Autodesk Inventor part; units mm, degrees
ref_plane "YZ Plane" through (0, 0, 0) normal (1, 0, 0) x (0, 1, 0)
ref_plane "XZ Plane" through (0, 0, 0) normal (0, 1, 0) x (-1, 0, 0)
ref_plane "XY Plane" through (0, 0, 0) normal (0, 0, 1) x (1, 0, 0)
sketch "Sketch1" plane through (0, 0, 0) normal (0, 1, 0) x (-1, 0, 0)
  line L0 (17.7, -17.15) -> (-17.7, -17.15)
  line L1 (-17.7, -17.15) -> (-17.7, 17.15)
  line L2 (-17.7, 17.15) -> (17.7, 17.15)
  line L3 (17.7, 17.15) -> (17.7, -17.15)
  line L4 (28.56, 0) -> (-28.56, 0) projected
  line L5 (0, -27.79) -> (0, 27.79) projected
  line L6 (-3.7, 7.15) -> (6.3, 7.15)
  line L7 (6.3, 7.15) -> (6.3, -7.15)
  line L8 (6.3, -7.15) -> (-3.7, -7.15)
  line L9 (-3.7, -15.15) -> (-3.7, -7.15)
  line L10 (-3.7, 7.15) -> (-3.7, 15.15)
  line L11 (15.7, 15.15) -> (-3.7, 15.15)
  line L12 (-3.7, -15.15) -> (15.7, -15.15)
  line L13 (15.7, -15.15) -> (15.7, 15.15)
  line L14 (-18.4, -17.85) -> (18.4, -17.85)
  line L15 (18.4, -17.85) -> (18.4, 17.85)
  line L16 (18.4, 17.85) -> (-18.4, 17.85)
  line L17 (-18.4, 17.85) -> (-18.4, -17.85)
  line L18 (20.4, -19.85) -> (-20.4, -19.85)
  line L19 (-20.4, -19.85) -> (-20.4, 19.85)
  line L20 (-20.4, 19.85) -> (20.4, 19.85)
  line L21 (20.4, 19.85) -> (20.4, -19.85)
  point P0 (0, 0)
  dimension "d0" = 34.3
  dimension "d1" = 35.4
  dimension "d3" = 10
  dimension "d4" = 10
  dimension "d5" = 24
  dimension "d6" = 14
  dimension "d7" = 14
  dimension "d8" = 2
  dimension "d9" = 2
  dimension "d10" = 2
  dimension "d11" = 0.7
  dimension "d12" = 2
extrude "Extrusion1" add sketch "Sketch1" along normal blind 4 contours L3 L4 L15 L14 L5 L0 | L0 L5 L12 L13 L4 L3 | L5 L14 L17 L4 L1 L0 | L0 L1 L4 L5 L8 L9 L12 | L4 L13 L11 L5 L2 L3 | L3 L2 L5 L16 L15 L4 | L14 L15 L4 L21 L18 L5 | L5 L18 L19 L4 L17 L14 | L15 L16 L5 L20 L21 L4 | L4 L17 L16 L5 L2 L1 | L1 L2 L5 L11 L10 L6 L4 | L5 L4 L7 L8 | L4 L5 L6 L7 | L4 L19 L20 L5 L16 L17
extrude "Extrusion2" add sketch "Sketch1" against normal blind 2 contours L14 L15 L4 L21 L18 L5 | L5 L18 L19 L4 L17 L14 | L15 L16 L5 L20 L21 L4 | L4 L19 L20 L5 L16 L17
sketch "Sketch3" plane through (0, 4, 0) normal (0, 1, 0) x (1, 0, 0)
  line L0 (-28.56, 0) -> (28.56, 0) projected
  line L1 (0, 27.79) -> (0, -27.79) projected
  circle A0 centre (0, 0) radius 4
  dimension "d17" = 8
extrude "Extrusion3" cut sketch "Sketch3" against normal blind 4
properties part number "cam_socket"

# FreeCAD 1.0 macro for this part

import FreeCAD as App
import Part
import Sketcher

doc = App.newDocument("Part")
params = doc.addObject("Spreadsheet::Sheet", "Params")
for row, (alias, value) in enumerate([
    ("sketch1_width", "10 mm"),
    ("sketch1_height", "8 mm"),
    ("sketch1_width2", "40.8 mm"),
    ("sketch1_width3", "19.4 mm"),
    ("sketch1_height2", "39.7 mm"),
    ("pad1_length", "4 mm"),
    ("sketch2_width", "40.8 mm"),
    ("sketch2_height", "39.7 mm"),
    ("pad2_length", "2 mm"),
    ("sketch3_diameter", "8 mm"),
    ("pocket1_length", "4 mm"),
], start=1):
    params.set(f"A{row}", alias)
    params.set(f"B{row}", "=" + value)
    params.setAlias(f"B{row}", alias)

body = doc.addObject("PartDesign::Body", "Body")

# Sketch on XZ plane
sketch1 = body.newObject("Sketcher::SketchObject", "Sketch")
sketch1.AttachmentSupport = (doc.getObject("XZ_Plane"), [""])
sketch1.MapMode = "FlatFace"
sketch1.addGeometry(Part.LineSegment(App.Vector(-20, -20, 0), App.Vector(-20, 20, 0)), False)
sketch1.addGeometry(Part.LineSegment(App.Vector(-20, 20, 0), App.Vector(20, 20, 0)), False)
sketch1.addGeometry(Part.LineSegment(App.Vector(20, 20, 0), App.Vector(20, -20, 0)), False)
sketch1.addGeometry(Part.LineSegment(App.Vector(20, -20, 0), App.Vector(-20, -20, 0)), False)
sketch1.addGeometry(Part.LineSegment(App.Vector(-16, -15, 0), App.Vector(4, -15, 0)), False)
sketch1.addGeometry(Part.LineSegment(App.Vector(4, -15, 0), App.Vector(4, -7, 0)), False)
sketch1.addGeometry(Part.LineSegment(App.Vector(4, -7, 0), App.Vector(-6, -7, 0)), False)
sketch1.addGeometry(Part.LineSegment(App.Vector(-6, -7, 0), App.Vector(-6, 7, 0)), False)
sketch1.addGeometry(Part.LineSegment(App.Vector(-6, 7, 0), App.Vector(4, 7, 0)), False)
sketch1.addGeometry(Part.LineSegment(App.Vector(4, 7, 0), App.Vector(4, 15, 0)), False)
sketch1.addGeometry(Part.LineSegment(App.Vector(4, 15, 0), App.Vector(-16, 15, 0)), False)
sketch1.addGeometry(Part.LineSegment(App.Vector(-16, 15, 0), App.Vector(-16, -15, 0)), False)
sketch1.addConstraint(Sketcher.Constraint("Coincident", 0, 2, 1, 1))
sketch1.addConstraint(Sketcher.Constraint("Coincident", 1, 2, 2, 1))
sketch1.addConstraint(Sketcher.Constraint("Coincident", 2, 2, 3, 1))
sketch1.addConstraint(Sketcher.Constraint("Coincident", 3, 2, 0, 1))
sketch1.addConstraint(Sketcher.Constraint("Coincident", 4, 2, 5, 1))
sketch1.addConstraint(Sketcher.Constraint("Coincident", 5, 2, 6, 1))
sketch1.addConstraint(Sketcher.Constraint("Coincident", 6, 2, 7, 1))
sketch1.addConstraint(Sketcher.Constraint("Coincident", 7, 2, 8, 1))
sketch1.addConstraint(Sketcher.Constraint("Coincident", 8, 2, 9, 1))
sketch1.addConstraint(Sketcher.Constraint("Coincident", 9, 2, 10, 1))
sketch1.addConstraint(Sketcher.Constraint("Coincident", 10, 2, 11, 1))
sketch1.addConstraint(Sketcher.Constraint("Coincident", 11, 2, 4, 1))
sketch1.addConstraint(Sketcher.Constraint("Vertical", 0))
sketch1.addConstraint(Sketcher.Constraint("Horizontal", 1))
sketch1.addConstraint(Sketcher.Constraint("Vertical", 2))
sketch1.addConstraint(Sketcher.Constraint("Horizontal", 3))
sketch1.addConstraint(Sketcher.Constraint("Horizontal", 4))
sketch1.addConstraint(Sketcher.Constraint("Vertical", 5))
sketch1.addConstraint(Sketcher.Constraint("Horizontal", 6))
sketch1.addConstraint(Sketcher.Constraint("Vertical", 7))
sketch1.addConstraint(Sketcher.Constraint("Horizontal", 8))
sketch1.addConstraint(Sketcher.Constraint("Vertical", 9))
sketch1.addConstraint(Sketcher.Constraint("Horizontal", 10))
sketch1.addConstraint(Sketcher.Constraint("Vertical", 11))
sketch1.addConstraint(Sketcher.Constraint("Symmetric", 0, 2, 2, 2, -1, 1))
sketch1.addConstraint(Sketcher.Constraint("Symmetric", 5, 2, 8, 2, -1))
sketch1.addConstraint(Sketcher.Constraint("Equal", 5, 9))
sketch1.addConstraint(Sketcher.Constraint("DistanceX", 6, 2, 6, 1, 10.0))
sketch1.addConstraint(Sketcher.Constraint("DistanceY", 5, 1, 5, 2, 8.0))
sketch1.addConstraint(Sketcher.Constraint("DistanceX", 1, 1, 1, 2, 40.8))
sketch1.addConstraint(Sketcher.Constraint("DistanceX", 4, 1, 4, 2, 19.4))
sketch1.addConstraint(Sketcher.Constraint("DistanceY", 0, 1, 0, 2, 39.7))
sketch1.addConstraint(Sketcher.Constraint("DistanceY", 7, 1, 7, 2, 14.3))
sketch1.addConstraint(Sketcher.Constraint("DistanceX", -1, 1, 4, 2, 3.7))
sketch1.setExpression("Constraints[27]", "Params.sketch1_width")
sketch1.setExpression("Constraints[28]", "Params.sketch1_height")
sketch1.setExpression("Constraints[29]", "Params.sketch1_width2")
sketch1.setExpression("Constraints[30]", "Params.sketch1_width3")
sketch1.setExpression("Constraints[31]", "Params.sketch1_height2")
pad1 = body.newObject("PartDesign::Pad", "Pad")
pad1.Profile = sketch1
pad1.setExpression("Length", "Params.pad1_length")
pad1.Reversed = True

# Sketch on XZ plane
sketch2 = body.newObject("Sketcher::SketchObject", "Sketch001")
sketch2.AttachmentSupport = (doc.getObject("XZ_Plane"), [""])
sketch2.MapMode = "FlatFace"
sketch2.addGeometry(Part.LineSegment(App.Vector(-20, -20, 0), App.Vector(-20, 20, 0)), False)
sketch2.addGeometry(Part.LineSegment(App.Vector(-20, 20, 0), App.Vector(20, 20, 0)), False)
sketch2.addGeometry(Part.LineSegment(App.Vector(20, 20, 0), App.Vector(20, -20, 0)), False)
sketch2.addGeometry(Part.LineSegment(App.Vector(20, -20, 0), App.Vector(-20, -20, 0)), False)
sketch2.addGeometry(Part.LineSegment(App.Vector(-18, -18, 0), App.Vector(18, -18, 0)), False)
sketch2.addGeometry(Part.LineSegment(App.Vector(18, -18, 0), App.Vector(18, 18, 0)), False)
sketch2.addGeometry(Part.LineSegment(App.Vector(18, 18, 0), App.Vector(-18, 18, 0)), False)
sketch2.addGeometry(Part.LineSegment(App.Vector(-18, 18, 0), App.Vector(-18, -18, 0)), False)
sketch2.addConstraint(Sketcher.Constraint("Coincident", 0, 2, 1, 1))
sketch2.addConstraint(Sketcher.Constraint("Coincident", 1, 2, 2, 1))
sketch2.addConstraint(Sketcher.Constraint("Coincident", 2, 2, 3, 1))
sketch2.addConstraint(Sketcher.Constraint("Coincident", 3, 2, 0, 1))
sketch2.addConstraint(Sketcher.Constraint("Coincident", 4, 2, 5, 1))
sketch2.addConstraint(Sketcher.Constraint("Coincident", 5, 2, 6, 1))
sketch2.addConstraint(Sketcher.Constraint("Coincident", 6, 2, 7, 1))
sketch2.addConstraint(Sketcher.Constraint("Coincident", 7, 2, 4, 1))
sketch2.addConstraint(Sketcher.Constraint("Vertical", 0))
sketch2.addConstraint(Sketcher.Constraint("Horizontal", 1))
sketch2.addConstraint(Sketcher.Constraint("Vertical", 2))
sketch2.addConstraint(Sketcher.Constraint("Horizontal", 3))
sketch2.addConstraint(Sketcher.Constraint("Horizontal", 4))
sketch2.addConstraint(Sketcher.Constraint("Vertical", 5))
sketch2.addConstraint(Sketcher.Constraint("Horizontal", 6))
sketch2.addConstraint(Sketcher.Constraint("Vertical", 7))
sketch2.addConstraint(Sketcher.Constraint("Symmetric", 0, 2, 2, 2, -1, 1))
sketch2.addConstraint(Sketcher.Constraint("Symmetric", 4, 2, 6, 2, -1, 1))
sketch2.addConstraint(Sketcher.Constraint("DistanceX", 4, 2, 2, 2, 2.0))
sketch2.addConstraint(Sketcher.Constraint("DistanceY", 2, 2, 4, 2, 2.0))
sketch2.addConstraint(Sketcher.Constraint("DistanceX", 1, 1, 1, 2, 40.8))
sketch2.addConstraint(Sketcher.Constraint("DistanceY", 0, 1, 0, 2, 39.7))
sketch2.setExpression("Constraints[20]", "Params.sketch2_width")
sketch2.setExpression("Constraints[21]", "Params.sketch2_height")
pad2 = body.newObject("PartDesign::Pad", "Pad001")
pad2.Profile = sketch2
pad2.setExpression("Length", "Params.pad2_length")

# Sketch on XZ plane
sketch3 = body.newObject("Sketcher::SketchObject", "Sketch002")
sketch3.AttachmentSupport = (doc.getObject("XZ_Plane"), [""])
sketch3.MapMode = "FlatFace"
sketch3.AttachmentOffset = App.Placement(App.Vector(0, 0, -4), App.Rotation())
sketch3.addGeometry(Part.Circle(App.Vector(0, 0, 0), App.Vector(0, 0, 1), 4), False)
sketch3.addConstraint(Sketcher.Constraint("Coincident", 0, 3, -1, 1))
sketch3.addConstraint(Sketcher.Constraint("Diameter", 0, 8.0))
sketch3.setExpression("Constraints[1]", "Params.sketch3_diameter")
pocket1 = body.newObject("PartDesign::Pocket", "Pocket")
pocket1.Profile = sketch3
pocket1.setExpression("Length", "Params.pocket1_length")
pocket1.Reversed = True

doc.recompute()
